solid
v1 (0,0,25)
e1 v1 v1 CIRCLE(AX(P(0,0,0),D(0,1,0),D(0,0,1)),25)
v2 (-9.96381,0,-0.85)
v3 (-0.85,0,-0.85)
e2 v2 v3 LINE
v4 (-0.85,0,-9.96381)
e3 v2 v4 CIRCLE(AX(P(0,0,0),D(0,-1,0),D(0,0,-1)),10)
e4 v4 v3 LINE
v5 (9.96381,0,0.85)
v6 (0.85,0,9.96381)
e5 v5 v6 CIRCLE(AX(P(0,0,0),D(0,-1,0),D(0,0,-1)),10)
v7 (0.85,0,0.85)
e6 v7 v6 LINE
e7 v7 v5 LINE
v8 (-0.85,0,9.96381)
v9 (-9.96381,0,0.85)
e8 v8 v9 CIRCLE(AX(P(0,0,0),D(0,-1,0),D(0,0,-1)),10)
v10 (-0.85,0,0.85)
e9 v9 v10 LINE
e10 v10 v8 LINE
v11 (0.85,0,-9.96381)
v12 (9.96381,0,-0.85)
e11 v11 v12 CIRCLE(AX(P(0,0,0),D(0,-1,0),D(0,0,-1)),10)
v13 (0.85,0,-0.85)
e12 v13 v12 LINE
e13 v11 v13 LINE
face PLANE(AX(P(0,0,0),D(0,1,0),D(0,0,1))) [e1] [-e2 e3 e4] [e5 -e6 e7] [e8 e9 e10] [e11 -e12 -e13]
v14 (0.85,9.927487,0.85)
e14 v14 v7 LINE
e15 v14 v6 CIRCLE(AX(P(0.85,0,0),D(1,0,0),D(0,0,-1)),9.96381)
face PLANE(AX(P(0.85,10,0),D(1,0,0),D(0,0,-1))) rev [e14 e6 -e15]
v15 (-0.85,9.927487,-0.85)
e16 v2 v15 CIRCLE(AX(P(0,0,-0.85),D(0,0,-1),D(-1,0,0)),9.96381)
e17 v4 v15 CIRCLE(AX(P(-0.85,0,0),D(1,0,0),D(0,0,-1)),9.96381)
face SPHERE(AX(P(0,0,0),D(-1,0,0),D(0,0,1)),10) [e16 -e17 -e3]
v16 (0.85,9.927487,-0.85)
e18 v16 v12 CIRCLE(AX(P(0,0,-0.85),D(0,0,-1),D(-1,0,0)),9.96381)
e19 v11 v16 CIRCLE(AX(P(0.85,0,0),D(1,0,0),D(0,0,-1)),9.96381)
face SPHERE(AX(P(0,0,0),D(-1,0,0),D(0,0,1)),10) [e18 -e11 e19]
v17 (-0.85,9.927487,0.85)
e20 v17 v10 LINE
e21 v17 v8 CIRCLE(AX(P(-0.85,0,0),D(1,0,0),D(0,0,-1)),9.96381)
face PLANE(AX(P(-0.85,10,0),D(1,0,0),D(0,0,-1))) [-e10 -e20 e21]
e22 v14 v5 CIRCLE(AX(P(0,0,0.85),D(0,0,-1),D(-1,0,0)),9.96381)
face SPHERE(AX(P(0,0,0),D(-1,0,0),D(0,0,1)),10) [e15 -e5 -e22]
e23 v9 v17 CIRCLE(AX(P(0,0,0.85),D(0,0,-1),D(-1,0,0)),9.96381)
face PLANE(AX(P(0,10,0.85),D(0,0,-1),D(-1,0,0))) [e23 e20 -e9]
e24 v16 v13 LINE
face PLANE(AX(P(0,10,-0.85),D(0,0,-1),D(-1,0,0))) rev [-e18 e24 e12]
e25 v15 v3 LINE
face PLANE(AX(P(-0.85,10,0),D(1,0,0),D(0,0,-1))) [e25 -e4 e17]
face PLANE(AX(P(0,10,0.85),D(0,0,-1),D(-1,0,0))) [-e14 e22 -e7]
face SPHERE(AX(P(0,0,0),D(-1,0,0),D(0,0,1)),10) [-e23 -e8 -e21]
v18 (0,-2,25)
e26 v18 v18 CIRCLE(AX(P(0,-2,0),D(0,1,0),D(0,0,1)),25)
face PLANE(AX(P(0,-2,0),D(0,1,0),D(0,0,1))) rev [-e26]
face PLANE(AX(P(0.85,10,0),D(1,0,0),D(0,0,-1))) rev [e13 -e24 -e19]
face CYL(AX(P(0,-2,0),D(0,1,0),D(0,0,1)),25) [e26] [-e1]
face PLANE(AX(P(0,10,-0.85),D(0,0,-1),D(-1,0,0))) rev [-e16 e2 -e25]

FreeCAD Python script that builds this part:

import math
import FreeCAD as App
import Part
import Sketcher

V = App.Vector


def add_polygon(sketch, points):
    """Adds a closed chain of lines whose ends are joined by coincident constraints."""
    first, n = sketch.GeometryCount, len(points)
    for a, b in zip(points, points[1:] + points[:1]):
        sketch.addGeometry(Part.LineSegment(App.Vector(*a, 0), App.Vector(*b, 0)), False)
    for i in range(n):
        sketch.addConstraint(Sketcher.Constraint("Coincident", first + i, 2, first + (i + 1) % n, 1))

doc = App.newDocument("Part")
params = doc.addObject("Spreadsheet::Sheet", "Params")
for row, (alias, value) in enumerate([
    ("sketch1_diameter", "50 mm"),
    ("pad1_length", "2 mm"),
    ("sketch2_radius", "10 mm"),
    ("revolution_angle", "180 deg"),
    ("sketch3_width", "1.7 mm"),
    ("pocket1_length", "10 mm"),
], start=1):
    params.set(f"A{row}", alias)
    params.set(f"B{row}", "=" + value)
    params.setAlias(f"B{row}", alias)

body = doc.addObject("PartDesign::Body", "Body")

sketch1 = body.newObject("Sketcher::SketchObject", "Sketch")
sketch1.AttachmentSupport = (doc.getObject("XZ_Plane"), [""])
sketch1.MapMode = "FlatFace"
sketch1.addGeometry(Part.Circle(V(0, 0, 0), V(0, 0, 1), 25), False)
sketch1.addConstraint(Sketcher.Constraint("Coincident", 0, 3, -1, 1))
sketch1.addConstraint(Sketcher.Constraint("Diameter", 0, 50.0))
sketch1.setExpression("Constraints[1]", "Params.sketch1_diameter")
pad1 = body.newObject("PartDesign::Pad", "Pad")
pad1.Profile = sketch1
pad1.setExpression("Length", "Params.pad1_length")

sketch2 = body.newObject("Sketcher::SketchObject", "Sketch001")
sketch2.AttachmentSupport = (doc.getObject("XZ_Plane"), [""])
sketch2.MapMode = "FlatFace"
sketch2.addGeometry(Part.LineSegment(V(-10, 0, 0), V(10, 0, 0)), False)
sketch2.addGeometry(Part.ArcOfCircle(Part.Circle(V(0, 0, 0), V(0, 0, 1), 10), math.radians(180), math.radians(360)), False)
sketch2.addConstraint(Sketcher.Constraint("Coincident", 0, 1, 1, 1))
sketch2.addConstraint(Sketcher.Constraint("Coincident", 1, 2, 0, 2))
sketch2.addConstraint(Sketcher.Constraint("Horizontal", 0))
sketch2.addConstraint(Sketcher.Constraint("Coincident", 1, 3, -1, 1))
sketch2.addConstraint(Sketcher.Constraint("PointOnObject", 0, 1, -1))
sketch2.addConstraint(Sketcher.Constraint("Radius", 1, 10.0))
sketch2.setExpression("Constraints[5]", "Params.sketch2_radius")
revolution = body.newObject("PartDesign::Revolution", "Revolution")
revolution.Profile = sketch2
revolution.ReferenceAxis = (sketch2, ["H_Axis"])
revolution.setExpression("Angle", "Params.revolution_angle")

sketch3 = body.newObject("Sketcher::SketchObject", "Sketch002")
sketch3.AttachmentSupport = (doc.getObject("XZ_Plane"), [""])
sketch3.MapMode = "FlatFace"
add_polygon(sketch3, [(0.85, -0.85), (0.85, -10), (-0.85, -10), (-0.85, -0.85), (-10, -0.85), (-10, 0.85), (-0.85, 0.85), (-0.85, 10), (0.85, 10), (0.85, 0.85), (10, 0.85), (10, -0.85)])
sketch3.addConstraint(Sketcher.Constraint("Vertical", 0))
sketch3.addConstraint(Sketcher.Constraint("Horizontal", 1))
sketch3.addConstraint(Sketcher.Constraint("Vertical", 2))
sketch3.addConstraint(Sketcher.Constraint("Horizontal", 3))
sketch3.addConstraint(Sketcher.Constraint("Vertical", 4))
sketch3.addConstraint(Sketcher.Constraint("Horizontal", 5))
sketch3.addConstraint(Sketcher.Constraint("Vertical", 6))
sketch3.addConstraint(Sketcher.Constraint("Horizontal", 7))
sketch3.addConstraint(Sketcher.Constraint("Vertical", 8))
sketch3.addConstraint(Sketcher.Constraint("Horizontal", 9))
sketch3.addConstraint(Sketcher.Constraint("Vertical", 10))
sketch3.addConstraint(Sketcher.Constraint("Horizontal", 11))
sketch3.addConstraint(Sketcher.Constraint("Symmetric", 0, 2, 6, 2, -1, 1))
sketch3.addConstraint(Sketcher.Constraint("Symmetric", 2, 2, 8, 2, -1, 1))
sketch3.addConstraint(Sketcher.Constraint("Symmetric", 4, 2, 10, 2, -1, 1))
sketch3.addConstraint(Sketcher.Constraint("Symmetric", 5, 2, 8, 2, -2))
sketch3.addConstraint(Sketcher.Constraint("Equal", 11, 0))
sketch3.addConstraint(Sketcher.Constraint("Equal", 7, 4))
sketch3.addConstraint(Sketcher.Constraint("DistanceX", 1, 2, 1, 1, 1.7))
sketch3.addConstraint(Sketcher.Constraint("DistanceY", 0, 2, -1, 1, 10.0))
sketch3.setExpression("Constraints[30]", "Params.sketch3_width")
pocket1 = body.newObject("PartDesign::Pocket", "Pocket")
pocket1.Profile = sketch3
pocket1.setExpression("Length", "Params.pocket1_length")

doc.recompute()
